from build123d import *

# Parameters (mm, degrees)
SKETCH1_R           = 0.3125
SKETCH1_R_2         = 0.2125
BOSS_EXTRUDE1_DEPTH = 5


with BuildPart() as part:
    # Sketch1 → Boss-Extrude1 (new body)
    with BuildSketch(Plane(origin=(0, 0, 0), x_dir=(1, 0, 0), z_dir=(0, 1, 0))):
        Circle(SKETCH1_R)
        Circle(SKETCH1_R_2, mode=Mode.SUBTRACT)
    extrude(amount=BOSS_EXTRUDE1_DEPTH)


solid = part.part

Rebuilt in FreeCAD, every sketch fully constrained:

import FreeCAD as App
import Part
import Sketcher
from FreeCAD import Vector
Q = App.Units.Quantity

doc = App.newDocument("Part")
params = doc.addObject("Spreadsheet::Sheet", "Params")
for row, (alias, value) in enumerate([
    ("pad1_length", "5 mm"),
], start=1):
    params.set(f"A{row}", alias)
    params.set(f"B{row}", "=" + value)
    params.setAlias(f"B{row}", alias)

body = doc.addObject("PartDesign::Body", "Body")

# Sketch on XZ plane
sketch1 = body.newObject("Sketcher::SketchObject", "Sketch")
sketch1.AttachmentSupport = (doc.getObject("XZ_Plane"), [""])
sketch1.MapMode = "FlatFace"
sketch1.addGeometry(Part.Circle(Vector(0, 0, 0), Vector(0, 0, 1), 0.31), False)
sketch1.addGeometry(Part.Circle(Vector(0, 0, 0), Vector(0, 0, 1), 0.21), False)
sketch1.addConstraint(Sketcher.Constraint("Coincident", 0, 3, -1, 1))
sketch1.addConstraint(Sketcher.Constraint("Coincident", 1, 3, -1, 1))
sketch1.addConstraint(Sketcher.Constraint("Diameter", 0, Q("0.625 mm")))
sketch1.addConstraint(Sketcher.Constraint("Diameter", 1, Q("0.425 mm")))
pad1 = body.newObject("PartDesign::Pad", "Pad")
pad1.Profile = sketch1
pad1.setExpression("Length", "Params.pad1_length")
pad1.Reversed = True

doc.recompute()
